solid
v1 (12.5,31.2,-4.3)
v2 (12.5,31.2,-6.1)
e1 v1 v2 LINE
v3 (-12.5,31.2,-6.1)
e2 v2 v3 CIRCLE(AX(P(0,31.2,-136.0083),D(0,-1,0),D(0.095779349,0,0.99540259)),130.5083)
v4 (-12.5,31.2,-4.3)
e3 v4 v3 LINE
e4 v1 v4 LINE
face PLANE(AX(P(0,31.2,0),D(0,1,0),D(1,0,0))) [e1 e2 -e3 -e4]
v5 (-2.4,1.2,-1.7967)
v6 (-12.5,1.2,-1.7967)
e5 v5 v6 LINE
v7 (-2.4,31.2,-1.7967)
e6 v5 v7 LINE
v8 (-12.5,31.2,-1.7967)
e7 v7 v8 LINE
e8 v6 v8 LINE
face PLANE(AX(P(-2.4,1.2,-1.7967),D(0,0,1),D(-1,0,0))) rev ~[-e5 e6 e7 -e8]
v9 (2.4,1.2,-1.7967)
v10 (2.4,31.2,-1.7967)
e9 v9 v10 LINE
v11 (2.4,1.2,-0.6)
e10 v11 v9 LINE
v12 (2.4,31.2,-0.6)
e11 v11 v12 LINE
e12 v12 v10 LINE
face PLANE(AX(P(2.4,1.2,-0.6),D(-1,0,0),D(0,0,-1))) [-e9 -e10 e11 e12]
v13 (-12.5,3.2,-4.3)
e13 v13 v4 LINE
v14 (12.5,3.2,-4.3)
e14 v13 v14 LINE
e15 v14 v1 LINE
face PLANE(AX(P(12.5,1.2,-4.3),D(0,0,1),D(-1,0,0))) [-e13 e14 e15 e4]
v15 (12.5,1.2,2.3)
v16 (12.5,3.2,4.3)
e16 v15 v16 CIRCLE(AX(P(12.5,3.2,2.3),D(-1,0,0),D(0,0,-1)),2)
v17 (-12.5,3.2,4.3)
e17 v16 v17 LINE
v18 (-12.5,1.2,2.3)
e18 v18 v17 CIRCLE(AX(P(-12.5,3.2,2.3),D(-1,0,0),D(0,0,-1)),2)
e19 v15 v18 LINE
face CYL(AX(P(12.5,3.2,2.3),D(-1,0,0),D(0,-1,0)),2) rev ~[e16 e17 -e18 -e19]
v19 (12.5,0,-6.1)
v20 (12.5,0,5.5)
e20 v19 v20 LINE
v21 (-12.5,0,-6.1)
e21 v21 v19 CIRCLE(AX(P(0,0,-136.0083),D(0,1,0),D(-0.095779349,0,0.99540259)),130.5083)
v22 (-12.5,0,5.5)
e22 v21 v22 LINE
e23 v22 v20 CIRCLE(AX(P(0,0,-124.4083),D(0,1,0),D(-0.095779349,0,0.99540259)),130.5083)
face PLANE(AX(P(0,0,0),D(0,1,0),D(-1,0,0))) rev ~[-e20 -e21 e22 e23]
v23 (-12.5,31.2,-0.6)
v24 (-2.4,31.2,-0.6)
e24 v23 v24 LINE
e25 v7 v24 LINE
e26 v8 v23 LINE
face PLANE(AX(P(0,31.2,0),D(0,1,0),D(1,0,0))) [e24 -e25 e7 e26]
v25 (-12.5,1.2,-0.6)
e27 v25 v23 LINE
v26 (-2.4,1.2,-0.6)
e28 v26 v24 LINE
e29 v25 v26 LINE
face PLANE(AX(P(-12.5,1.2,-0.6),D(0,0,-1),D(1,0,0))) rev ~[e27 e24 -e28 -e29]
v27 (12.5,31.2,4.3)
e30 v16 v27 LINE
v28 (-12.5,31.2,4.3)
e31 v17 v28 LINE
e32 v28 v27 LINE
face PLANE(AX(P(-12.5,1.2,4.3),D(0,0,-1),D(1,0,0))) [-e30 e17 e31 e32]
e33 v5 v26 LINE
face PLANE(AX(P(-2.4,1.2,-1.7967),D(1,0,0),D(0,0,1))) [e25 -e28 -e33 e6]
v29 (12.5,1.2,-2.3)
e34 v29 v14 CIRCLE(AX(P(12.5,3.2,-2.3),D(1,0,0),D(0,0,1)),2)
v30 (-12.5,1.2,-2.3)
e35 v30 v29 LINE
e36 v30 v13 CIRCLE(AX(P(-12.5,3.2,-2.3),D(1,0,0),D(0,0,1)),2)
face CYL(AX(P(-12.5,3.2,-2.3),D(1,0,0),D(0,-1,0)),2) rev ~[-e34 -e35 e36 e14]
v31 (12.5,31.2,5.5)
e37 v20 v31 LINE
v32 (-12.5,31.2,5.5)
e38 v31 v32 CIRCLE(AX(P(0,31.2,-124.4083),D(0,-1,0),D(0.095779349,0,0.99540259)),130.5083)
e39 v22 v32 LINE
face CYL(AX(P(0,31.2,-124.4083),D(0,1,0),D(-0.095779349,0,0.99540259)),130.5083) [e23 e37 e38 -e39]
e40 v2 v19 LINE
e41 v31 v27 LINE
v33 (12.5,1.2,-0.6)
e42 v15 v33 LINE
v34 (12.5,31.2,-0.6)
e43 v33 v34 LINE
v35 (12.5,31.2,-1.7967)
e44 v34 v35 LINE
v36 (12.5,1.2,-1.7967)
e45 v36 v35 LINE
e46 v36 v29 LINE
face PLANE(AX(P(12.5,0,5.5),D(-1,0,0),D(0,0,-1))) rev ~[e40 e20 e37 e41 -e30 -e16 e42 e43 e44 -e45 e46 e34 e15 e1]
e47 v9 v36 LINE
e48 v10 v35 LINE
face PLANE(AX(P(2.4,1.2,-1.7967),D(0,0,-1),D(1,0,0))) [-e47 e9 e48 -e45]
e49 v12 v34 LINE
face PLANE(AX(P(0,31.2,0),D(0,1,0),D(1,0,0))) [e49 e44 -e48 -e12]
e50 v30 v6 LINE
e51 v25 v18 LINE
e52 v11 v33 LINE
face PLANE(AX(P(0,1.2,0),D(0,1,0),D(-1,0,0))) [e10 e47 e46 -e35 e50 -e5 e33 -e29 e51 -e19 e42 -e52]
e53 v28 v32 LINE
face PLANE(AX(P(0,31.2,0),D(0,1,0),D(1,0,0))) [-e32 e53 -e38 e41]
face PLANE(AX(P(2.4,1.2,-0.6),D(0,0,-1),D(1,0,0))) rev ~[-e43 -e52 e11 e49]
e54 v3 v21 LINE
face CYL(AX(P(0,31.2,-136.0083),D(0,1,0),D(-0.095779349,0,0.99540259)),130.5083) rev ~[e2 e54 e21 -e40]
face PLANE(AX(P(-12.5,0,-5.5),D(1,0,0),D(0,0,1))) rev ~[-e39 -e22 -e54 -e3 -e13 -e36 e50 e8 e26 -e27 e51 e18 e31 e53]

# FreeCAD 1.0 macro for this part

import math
import FreeCAD as App
import Part
import Sketcher


def edges_at(feature, points):
    """Names of the edges that pass closest to the given points."""
    edges = feature.Shape.Edges
    near = lambda p: min(range(len(edges)), key=lambda i: edges[i].distToShape(Part.Vertex(*p))[0])
    return sorted({f"Edge{near(p) + 1}" for p in points})

doc = App.newDocument("Part")
params = doc.addObject("Spreadsheet::Sheet", "Params")
for row, (alias, value) in enumerate([
    ("sketch1_width", "25 mm"),
    ("sketch1_height", "11 mm"),
    ("pad1_length", "1.2 mm"),
    ("sketch2_height", "1.2 mm"),
    ("sketch2_width", "25 mm"),
    ("pad2_length", "30 mm"),
    ("fillet_radius", "2 mm"),
    ("sketch3_height", "0.6 mm"),
    ("sketch3_width", "25 mm"),
    ("pad3_length", "31.2 mm"),
], start=1):
    params.set(f"A{row}", alias)
    params.set(f"B{row}", "=" + value)
    params.setAlias(f"B{row}", alias)

body = doc.addObject("PartDesign::Body", "Body")

sketch1 = doc.addObject("Sketcher::SketchObject", "Sketch")
body.addObject(sketch1)
sketch1.AttachmentSupport = (doc.XZ_Plane, [""])
sketch1.MapMode = "FlatFace"
sketch1.addGeometry([
    Part.LineSegment(App.Vector(-12, -6, 0), App.Vector(-12, 6, 0)),
    Part.LineSegment(App.Vector(-12, 6, 0), App.Vector(12, 6, 0)),
    Part.LineSegment(App.Vector(12, 6, 0), App.Vector(12, -6, 0)),
    Part.LineSegment(App.Vector(12, -6, 0), App.Vector(-12, -6, 0)),
], False)
sketch1.addConstraint([
    Sketcher.Constraint("Coincident", 0, 2, 1, 1),
    Sketcher.Constraint("Coincident", 1, 2, 2, 1),
    Sketcher.Constraint("Coincident", 2, 2, 3, 1),
    Sketcher.Constraint("Coincident", 3, 2, 0, 1),
    Sketcher.Constraint("Vertical", 0),
    Sketcher.Constraint("Horizontal", 1),
    Sketcher.Constraint("Vertical", 2),
    Sketcher.Constraint("Horizontal", 3),
    Sketcher.Constraint("Symmetric", 0, 2, 2, 2, -1, 1),
    Sketcher.Constraint("DistanceX", 1, 1, 1, 2, 25.0),
    Sketcher.Constraint("DistanceY", 0, 1, 0, 2, 11.0),
])
sketch1.setExpression("Constraints[9]", "Params.sketch1_width")
sketch1.setExpression("Constraints[10]", "Params.sketch1_height")
pad1 = doc.addObject("PartDesign::Pad", "Pad")
body.addObject(pad1)
pad1.Profile = sketch1
pad1.setExpression("Length", "Params.pad1_length")
pad1.Reversed = True

sketch2 = doc.addObject("Sketcher::SketchObject", "Sketch001")
body.addObject(sketch2)
sketch2.AttachmentSupport = (doc.XZ_Plane, [""])
sketch2.MapMode = "FlatFace"
sketch2.AttachmentOffset = App.Placement(App.Vector(0, 0, -1.2), App.Rotation())
sketch2.addGeometry([
    Part.LineSegment(App.Vector(12.5, -5.5, 0), App.Vector(-12.5, -5.5, 0)),
    Part.LineSegment(App.Vector(-12.5, -5.5, 0), App.Vector(-12.5, -4.3, 0)),
    Part.LineSegment(App.Vector(-12.5, -4.3, 0), App.Vector(12.5, -4.3, 0)),
    Part.LineSegment(App.Vector(12.5, -4.3, 0), App.Vector(12.5, -5.5, 0)),
    Part.LineSegment(App.Vector(-2.4, -1.8, 0), App.Vector(-12.5, -1.8, 0)),
    Part.LineSegment(App.Vector(-12.5, -1.8, 0), App.Vector(-12.5, -0.6, 0)),
    Part.LineSegment(App.Vector(-12.5, -0.6, 0), App.Vector(-2.4, -0.6, 0)),
    Part.LineSegment(App.Vector(-2.4, -0.6, 0), App.Vector(-2.4, -1.8, 0)),
    Part.LineSegment(App.Vector(12.5, -0.6, 0), App.Vector(12.5, -1.8, 0)),
    Part.LineSegment(App.Vector(12.5, -1.8, 0), App.Vector(2.4, -1.8, 0)),
    Part.LineSegment(App.Vector(2.4, -1.8, 0), App.Vector(2.4, -0.6, 0)),
    Part.LineSegment(App.Vector(2.4, -0.6, 0), App.Vector(12.5, -0.6, 0)),
    Part.LineSegment(App.Vector(12.5, 4.3, 0), App.Vector(-12.5, 4.3, 0)),
    Part.LineSegment(App.Vector(-12.5, 4.3, 0), App.Vector(-12.5, 5.5, 0)),
    Part.LineSegment(App.Vector(-12.5, 5.5, 0), App.Vector(12.5, 5.5, 0)),
    Part.LineSegment(App.Vector(12.5, 5.5, 0), App.Vector(12.5, 4.3, 0)),
], False)
sketch2.addConstraint([
    Sketcher.Constraint("Coincident", 0, 2, 1, 1),
    Sketcher.Constraint("Coincident", 1, 2, 2, 1),
    Sketcher.Constraint("Coincident", 2, 2, 3, 1),
    Sketcher.Constraint("Coincident", 3, 2, 0, 1),
    Sketcher.Constraint("Coincident", 4, 2, 5, 1),
    Sketcher.Constraint("Coincident", 5, 2, 6, 1),
    Sketcher.Constraint("Coincident", 6, 2, 7, 1),
    Sketcher.Constraint("Coincident", 7, 2, 4, 1),
    Sketcher.Constraint("Coincident", 8, 2, 9, 1),
    Sketcher.Constraint("Coincident", 9, 2, 10, 1),
    Sketcher.Constraint("Coincident", 10, 2, 11, 1),
    Sketcher.Constraint("Coincident", 11, 2, 8, 1),
    Sketcher.Constraint("Coincident", 12, 2, 13, 1),
    Sketcher.Constraint("Coincident", 13, 2, 14, 1),
    Sketcher.Constraint("Coincident", 14, 2, 15, 1),
    Sketcher.Constraint("Coincident", 15, 2, 12, 1),
    Sketcher.Constraint("Horizontal", 0),
    Sketcher.Constraint("Vertical", 1),
    Sketcher.Constraint("Horizontal", 2),
    Sketcher.Constraint("Vertical", 3),
    Sketcher.Constraint("Horizontal", 4),
    Sketcher.Constraint("Vertical", 5),
    Sketcher.Constraint("Horizontal", 6),
    Sketcher.Constraint("Vertical", 7),
    Sketcher.Constraint("Vertical", 8),
    Sketcher.Constraint("Horizontal", 9),
    Sketcher.Constraint("Vertical", 10),
    Sketcher.Constraint("Horizontal", 11),
    Sketcher.Constraint("Horizontal", 12),
    Sketcher.Constraint("Vertical", 13),
    Sketcher.Constraint("Horizontal", 14),
    Sketcher.Constraint("Vertical", 15),
    Sketcher.Constraint("Symmetric", 2, 2, 12, 2, -1, 1),
    Sketcher.Constraint("Symmetric", 0, 2, 14, 2, -1, 1),
    Sketcher.Constraint("Symmetric", 4, 2, 8, 2, -2),
    Sketcher.Constraint("Symmetric", 6, 2, 10, 2, -2),
    Sketcher.Constraint("Vertical", 1, 2, 4, 2),
    Sketcher.Constraint("Vertical", 3, 2, 8, 2),
    Sketcher.Constraint("DistanceY", 1, 1, 1, 2, 1.2),
    Sketcher.Constraint("DistanceY", 0, 2, 5, 2, 4.9),
    Sketcher.Constraint("DistanceX", 7, 2, 9, 2, 4.8),
    Sketcher.Constraint("DistanceY", 5, 2, 12, 2, 4.9),
    Sketcher.Constraint("DistanceX", 0, 2, 0, 1, 25.0),
    Sketcher.Constraint("DistanceY", 5, 1, 5, 2, 1.1967),
])
sketch2.setExpression("Constraints[38]", "Params.sketch2_height")
sketch2.setExpression("Constraints[42]", "Params.sketch2_width")
pad2 = doc.addObject("PartDesign::Pad", "Pad001")
body.addObject(pad2)
pad2.Profile = sketch2
pad2.setExpression("Length", "Params.pad2_length")
pad2.Reversed = True
doc.recompute()

fillet = doc.addObject("PartDesign::Fillet", "Fillet")
body.addObject(fillet)
fillet.Base = (pad2, edges_at(pad2, [(0, 1.2, 4.3), (0, 1.2, -4.3)]))
fillet.setExpression("Radius", "Params.fillet_radius")

sketch3 = doc.addObject("Sketcher::SketchObject", "Sketch002")
body.addObject(sketch3)
sketch3.AttachmentSupport = (doc.XZ_Plane, [""])
sketch3.MapMode = "FlatFace"
sketch3.AttachmentOffset = App.Placement(App.Vector(0, 0, -31.2), App.Rotation())
sketch3.addGeometry([
    Part.LineSegment(App.Vector(-12.5, -5.5, 0), App.Vector(0, -5.5, 0)),
    Part.ArcOfCircle(Part.Circle(App.Vector(0, -136, 0), App.Vector(0, 0, 1), 130.5), math.radians(90), math.radians(95.5)),
    Part.LineSegment(App.Vector(-12.5, -6.1, 0), App.Vector(-12.5, -5.5, 0)),
    Part.LineSegment(App.Vector(0, -5.5, 0), App.Vector(12.5, -5.5, 0)),
    Part.LineSegment(App.Vector(12.5, -5.5, 0), App.Vector(12.5, -6.1, 0)),
    Part.ArcOfCircle(Part.Circle(App.Vector(0, -136, 0), App.Vector(0, 0, 1), 130.5), math.radians(84.5), math.radians(90)),
    Part.ArcOfCircle(Part.Circle(App.Vector(0, -124.4, 0), App.Vector(0, 0, 1), 130.5), math.radians(84.5), math.radians(95.5)),
    Part.LineSegment(App.Vector(12.5, 5.5, 0), App.Vector(-12.5, 5.5, 0)),
], False)
sketch3.addConstraint([
    Sketcher.Constraint("Tangent", 0, 2, 1, 1),
    Sketcher.Constraint("Coincident", 1, 2, 2, 1),
    Sketcher.Constraint("Coincident", 2, 2, 0, 1),
    Sketcher.Constraint("Coincident", 3, 2, 4, 1),
    Sketcher.Constraint("Coincident", 4, 2, 5, 1),
    Sketcher.Constraint("Tangent", 5, 2, 3, 1),
    Sketcher.Constraint("Coincident", 6, 1, 7, 1),
    Sketcher.Constraint("Coincident", 7, 2, 6, 2),
    Sketcher.Constraint("Horizontal", 0),
    Sketcher.Constraint("Vertical", 2),
    Sketcher.Constraint("Horizontal", 3),
    Sketcher.Constraint("Vertical", 4),
    Sketcher.Constraint("Horizontal", 7),
    Sketcher.Constraint("Coincident", 5, 3, 1, 3),
    Sketcher.Constraint("Equal", 1, 5),
    Sketcher.Constraint("Equal", 5, 6),
    Sketcher.Constraint("Symmetric", 2, 2, 6, 1, -1, 1),
    Sketcher.Constraint("Symmetric", 1, 2, 4, 2, -2),
    Sketcher.Constraint("PointOnObject", 6, 3, -2),
    Sketcher.Constraint("DistanceY", 2, 1, 2, 2, 0.6),
    Sketcher.Constraint("DistanceX", 7, 2, 7, 1, 25.0),
    Sketcher.Constraint("DistanceY", 3, 2, 6, 1, 11.0),
])
sketch3.setExpression("Constraints[19]", "Params.sketch3_height")
sketch3.setExpression("Constraints[20]", "Params.sketch3_width")
pad3 = doc.addObject("PartDesign::Pad", "Pad002")
body.addObject(pad3)
pad3.Profile = sketch3
pad3.setExpression("Length", "Params.pad3_length")

doc.recompute()
